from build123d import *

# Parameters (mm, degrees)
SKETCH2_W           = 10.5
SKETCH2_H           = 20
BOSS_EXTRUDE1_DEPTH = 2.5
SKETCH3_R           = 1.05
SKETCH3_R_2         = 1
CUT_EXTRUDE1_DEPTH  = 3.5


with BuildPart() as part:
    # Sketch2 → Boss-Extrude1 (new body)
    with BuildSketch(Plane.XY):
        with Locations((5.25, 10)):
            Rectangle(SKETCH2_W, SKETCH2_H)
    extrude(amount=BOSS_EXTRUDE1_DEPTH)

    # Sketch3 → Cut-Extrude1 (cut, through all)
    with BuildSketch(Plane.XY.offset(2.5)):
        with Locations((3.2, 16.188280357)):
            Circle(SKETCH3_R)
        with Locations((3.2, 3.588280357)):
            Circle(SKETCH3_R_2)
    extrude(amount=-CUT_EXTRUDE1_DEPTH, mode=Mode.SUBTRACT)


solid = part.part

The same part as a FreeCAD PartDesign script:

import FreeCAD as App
import Part
import Sketcher
Q = App.Units.Quantity


def add_polygon(sketch, points):
    """Adds a closed chain of lines whose ends are joined by coincident constraints."""
    first, n = sketch.GeometryCount, len(points)
    for a, b in zip(points, points[1:] + points[:1]):
        sketch.addGeometry(Part.LineSegment(App.Vector(*a, 0), App.Vector(*b, 0)), False)
    for i in range(n):
        sketch.addConstraint(Sketcher.Constraint("Coincident", first + i, 2, first + (i + 1) % n, 1))

doc = App.newDocument("Part")
params = doc.addObject("Spreadsheet::Sheet", "Params")
for row, (alias, value) in enumerate([
    ("sketch1_height", "20 mm"),
    ("sketch1_width", "10.5 mm"),
    ("pad1_length", "2.5 mm"),
    ("sketch2_diameter", "2 mm"),
    ("sketch2_diameter2", "2.1 mm"),
], start=1):
    params.set(f"A{row}", alias)
    params.set(f"B{row}", "=" + value)
    params.setAlias(f"B{row}", alias)

body = doc.addObject("PartDesign::Body", "Body")

# Sketch on XY plane
sketch1 = doc.addObject("Sketcher::SketchObject", "Sketch")
body.addObject(sketch1)
sketch1.AttachmentSupport = (doc.XY_Plane, [""])
sketch1.MapMode = "FlatFace"
add_polygon(sketch1, [(0, 20), (0, 0), (10.5, 0), (10.5, 20)])  # lines 0-3
sketch1.addConstraint(Sketcher.Constraint("Vertical", 0))
sketch1.addConstraint(Sketcher.Constraint("Horizontal", 1))
sketch1.addConstraint(Sketcher.Constraint("Vertical", 2))
sketch1.addConstraint(Sketcher.Constraint("Horizontal", 3))
sketch1.addConstraint(Sketcher.Constraint("Coincident", 0, 2, -1, 1))
sketch1.addConstraint(Sketcher.Constraint("DistanceY", 0, 2, 0, 1, Q("20 mm")))
sketch1.addConstraint(Sketcher.Constraint("DistanceX", 1, 1, 1, 2, Q("10.5 mm")))
sketch1.setExpression("Constraints[9]", "Params.sketch1_height")
sketch1.setExpression("Constraints[10]", "Params.sketch1_width")
pad1 = doc.addObject("PartDesign::Pad", "Pad")
body.addObject(pad1)
pad1.Profile = sketch1
pad1.setExpression("Length", "Params.pad1_length")

# Sketch on XY plane
sketch2 = doc.addObject("Sketcher::SketchObject", "Sketch001")
body.addObject(sketch2)
sketch2.AttachmentSupport = (doc.XY_Plane, [""])
sketch2.MapMode = "FlatFace"
sketch2.AttachmentOffset = App.Placement(App.Vector(0, 0, 2.5), App.Rotation())
sketch2.addGeometry(Part.Circle(App.Vector(3.2, 16.18828, 0), App.Vector(0, 0, 1), 1.05), False)
sketch2.addGeometry(Part.Circle(App.Vector(3.2, 3.58828, 0), App.Vector(0, 0, 1), 1), False)
sketch2.addConstraint(Sketcher.Constraint("Vertical", 0, 3, 1, 3))
sketch2.addConstraint(Sketcher.Constraint("Diameter", 1, Q("2 mm")))
sketch2.addConstraint(Sketcher.Constraint("Diameter", 0, Q("2.1 mm")))
sketch2.addConstraint(Sketcher.Constraint("DistanceX", -1, 1, 0, 3, Q("3.2 mm")))
sketch2.addConstraint(Sketcher.Constraint("DistanceY", 1, 3, 0, 3, Q("12.6 mm")))
sketch2.addConstraint(Sketcher.Constraint("DistanceY", -1, 1, 0, 3, Q("16.18828 mm")))
sketch2.setExpression("Constraints[1]", "Params.sketch2_diameter")
sketch2.setExpression("Constraints[2]", "Params.sketch2_diameter2")
pocket1 = doc.addObject("PartDesign::Pocket", "Pocket")
body.addObject(pocket1)
pocket1.Profile = sketch2
pocket1.Type = "ThroughAll"

doc.recompute()
